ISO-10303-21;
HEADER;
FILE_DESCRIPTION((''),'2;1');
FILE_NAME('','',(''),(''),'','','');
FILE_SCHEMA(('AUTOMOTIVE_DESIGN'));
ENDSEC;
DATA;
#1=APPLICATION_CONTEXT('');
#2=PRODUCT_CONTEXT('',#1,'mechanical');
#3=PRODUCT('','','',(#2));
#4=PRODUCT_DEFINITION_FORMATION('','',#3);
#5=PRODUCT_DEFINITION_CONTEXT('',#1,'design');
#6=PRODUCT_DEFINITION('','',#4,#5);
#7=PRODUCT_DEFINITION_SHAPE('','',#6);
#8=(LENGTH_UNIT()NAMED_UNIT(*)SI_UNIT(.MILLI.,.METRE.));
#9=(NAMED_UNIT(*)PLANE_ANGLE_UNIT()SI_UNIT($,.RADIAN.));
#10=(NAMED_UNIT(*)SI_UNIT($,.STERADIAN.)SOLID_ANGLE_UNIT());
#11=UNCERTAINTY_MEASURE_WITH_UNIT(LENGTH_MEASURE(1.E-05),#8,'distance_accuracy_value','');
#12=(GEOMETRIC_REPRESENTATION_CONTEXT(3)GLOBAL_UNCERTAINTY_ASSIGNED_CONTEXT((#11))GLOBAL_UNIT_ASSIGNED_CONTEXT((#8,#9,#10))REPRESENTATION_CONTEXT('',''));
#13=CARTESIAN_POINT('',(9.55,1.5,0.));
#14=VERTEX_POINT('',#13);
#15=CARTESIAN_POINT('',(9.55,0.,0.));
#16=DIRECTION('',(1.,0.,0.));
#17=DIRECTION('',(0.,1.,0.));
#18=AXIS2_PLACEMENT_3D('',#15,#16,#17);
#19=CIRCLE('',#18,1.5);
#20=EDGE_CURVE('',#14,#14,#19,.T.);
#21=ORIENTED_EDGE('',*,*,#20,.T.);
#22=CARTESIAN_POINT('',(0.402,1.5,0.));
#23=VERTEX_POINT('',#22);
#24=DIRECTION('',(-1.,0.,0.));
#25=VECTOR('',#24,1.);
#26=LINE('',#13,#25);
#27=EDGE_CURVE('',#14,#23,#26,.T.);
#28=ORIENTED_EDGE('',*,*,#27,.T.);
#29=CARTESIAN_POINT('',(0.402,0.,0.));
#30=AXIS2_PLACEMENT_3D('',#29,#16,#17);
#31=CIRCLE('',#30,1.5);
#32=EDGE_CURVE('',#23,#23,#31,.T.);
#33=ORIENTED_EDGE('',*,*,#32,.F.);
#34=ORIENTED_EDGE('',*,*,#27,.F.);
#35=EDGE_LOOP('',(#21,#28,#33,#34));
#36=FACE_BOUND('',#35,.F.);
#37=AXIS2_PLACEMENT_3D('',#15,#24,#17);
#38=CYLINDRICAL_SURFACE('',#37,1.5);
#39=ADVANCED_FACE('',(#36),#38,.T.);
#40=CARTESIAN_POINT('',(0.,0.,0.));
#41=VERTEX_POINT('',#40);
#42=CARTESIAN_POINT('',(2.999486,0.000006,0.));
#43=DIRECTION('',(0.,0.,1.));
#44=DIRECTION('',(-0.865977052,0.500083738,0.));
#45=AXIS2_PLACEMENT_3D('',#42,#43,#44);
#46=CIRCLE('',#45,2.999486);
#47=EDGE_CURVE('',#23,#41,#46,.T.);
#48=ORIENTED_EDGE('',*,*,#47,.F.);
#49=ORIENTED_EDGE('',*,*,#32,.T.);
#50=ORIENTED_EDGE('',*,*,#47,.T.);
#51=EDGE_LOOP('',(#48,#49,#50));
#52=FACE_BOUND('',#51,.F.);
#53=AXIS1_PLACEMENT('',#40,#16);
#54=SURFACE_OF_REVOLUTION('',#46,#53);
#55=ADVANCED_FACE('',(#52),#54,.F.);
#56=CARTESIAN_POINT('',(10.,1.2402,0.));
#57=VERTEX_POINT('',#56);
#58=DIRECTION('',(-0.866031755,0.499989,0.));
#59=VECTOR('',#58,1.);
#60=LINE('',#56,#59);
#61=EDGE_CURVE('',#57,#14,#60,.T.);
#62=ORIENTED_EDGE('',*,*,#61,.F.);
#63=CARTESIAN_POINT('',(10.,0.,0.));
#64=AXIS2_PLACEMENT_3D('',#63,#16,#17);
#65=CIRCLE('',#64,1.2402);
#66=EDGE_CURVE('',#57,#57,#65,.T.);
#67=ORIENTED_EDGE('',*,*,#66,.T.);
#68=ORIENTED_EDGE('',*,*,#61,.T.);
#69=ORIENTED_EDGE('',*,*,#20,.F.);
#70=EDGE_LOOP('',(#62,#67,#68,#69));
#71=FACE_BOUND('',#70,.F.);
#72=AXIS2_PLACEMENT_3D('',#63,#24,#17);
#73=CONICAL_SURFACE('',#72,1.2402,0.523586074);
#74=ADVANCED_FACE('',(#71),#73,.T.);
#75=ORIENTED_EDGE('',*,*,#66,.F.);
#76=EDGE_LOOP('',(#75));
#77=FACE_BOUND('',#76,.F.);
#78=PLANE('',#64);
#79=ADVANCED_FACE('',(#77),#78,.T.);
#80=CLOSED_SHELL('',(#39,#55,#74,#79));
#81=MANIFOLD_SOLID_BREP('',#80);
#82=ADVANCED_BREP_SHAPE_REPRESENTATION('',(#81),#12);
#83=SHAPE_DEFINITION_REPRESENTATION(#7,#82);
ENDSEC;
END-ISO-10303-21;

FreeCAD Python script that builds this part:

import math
import FreeCAD as App
import Part
import Sketcher
Q = App.Units.Quantity

doc = App.newDocument("Part")
body = doc.addObject("PartDesign::Body", "Body")

# Sketch on XY plane
sketch1 = body.newObject("Sketcher::SketchObject", "Sketch")
sketch1.AttachmentSupport = (doc.getObject("XY_Plane"), [""])
sketch1.MapMode = "FlatFace"
sketch1.addGeometry([
    Part.ArcOfCircle(Part.Circle(App.Vector(2.9995, 0, 0), App.Vector(0, 0, 1), 2.999501), math.radians(149.994497), math.radians(180)),  # 0
    Part.LineSegment(App.Vector(0, 0, 0), App.Vector(10, 0, 0)),  # 1
    Part.LineSegment(App.Vector(10, 0, 0), App.Vector(10, 1.2402, 0)),  # 2
    Part.LineSegment(App.Vector(10, 1.2402, 0), App.Vector(9.55, 1.5, 0)),  # 3
    Part.LineSegment(App.Vector(9.55, 1.5, 0), App.Vector(0.402, 1.5, 0)),  # 4
], False)
sketch1.addConstraint([
    Sketcher.Constraint("Coincident", 0, 2, 1, 1),
    Sketcher.Constraint("Coincident", 1, 2, 2, 1),
    Sketcher.Constraint("Coincident", 2, 2, 3, 1),
    Sketcher.Constraint("Coincident", 3, 2, 4, 1),
    Sketcher.Constraint("Coincident", 4, 2, 0, 1),
    Sketcher.Constraint("Horizontal", 1),
    Sketcher.Constraint("Vertical", 2),
    Sketcher.Constraint("Horizontal", 4),
    Sketcher.Constraint("Coincident", 0, 2, -1, 1),
    Sketcher.Constraint("PointOnObject", 0, 3, -1),
    Sketcher.Constraint("DistanceX", 1, 1, 1, 2, 10.0),
    Sketcher.Constraint("Radius", 0, 2.9995),
    Sketcher.Constraint("Angle", 3, Q("150.0007 deg")),
    Sketcher.Constraint("DistanceX", 3, 2, 2, 2, 0.45),
    Sketcher.Constraint("DistanceX", -1, 1, 4, 2, 0.402),
])
revolution = body.newObject("PartDesign::Revolution", "Revolution")
revolution.Profile = sketch1
revolution.ReferenceAxis = (sketch1, ["H_Axis"])
revolution.Angle = 360

doc.recompute()
